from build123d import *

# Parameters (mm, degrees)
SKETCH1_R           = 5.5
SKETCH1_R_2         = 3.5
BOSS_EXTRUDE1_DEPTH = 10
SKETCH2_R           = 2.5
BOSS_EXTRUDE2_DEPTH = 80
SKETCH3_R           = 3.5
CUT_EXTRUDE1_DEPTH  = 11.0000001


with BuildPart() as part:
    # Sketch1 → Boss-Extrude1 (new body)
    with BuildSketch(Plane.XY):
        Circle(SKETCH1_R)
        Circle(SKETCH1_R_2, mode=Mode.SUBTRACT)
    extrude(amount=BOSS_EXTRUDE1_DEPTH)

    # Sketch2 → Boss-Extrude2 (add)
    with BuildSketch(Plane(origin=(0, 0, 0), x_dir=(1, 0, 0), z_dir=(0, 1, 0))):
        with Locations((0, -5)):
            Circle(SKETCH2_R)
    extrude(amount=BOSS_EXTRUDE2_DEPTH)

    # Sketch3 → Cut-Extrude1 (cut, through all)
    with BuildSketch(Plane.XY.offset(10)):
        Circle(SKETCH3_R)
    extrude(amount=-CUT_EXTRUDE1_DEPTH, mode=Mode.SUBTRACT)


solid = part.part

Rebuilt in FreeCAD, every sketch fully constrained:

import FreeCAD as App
import Part
import Sketcher
from FreeCAD import Vector
Q = App.Units.Quantity

doc = App.newDocument("Part")
body = doc.addObject("PartDesign::Body", "Body")

# Sketch on XY plane
sketch1 = body.newObject("Sketcher::SketchObject", "Sketch")
sketch1.AttachmentSupport = (doc.getObject("XY_Plane"), [""])
sketch1.MapMode = "FlatFace"
sketch1.addGeometry([
    Part.Circle(Vector(0, 0, 0), Vector(0, 0, 1), 5.5),
    Part.Circle(Vector(0, 0, 0), Vector(0, 0, 1), 3.5),
], False)
sketch1.addConstraint([
    Sketcher.Constraint("Coincident", 0, 3, -1, 1),
    Sketcher.Constraint("Coincident", 1, 3, -1, 1),
    Sketcher.Constraint("Diameter", 0, Q("11 mm")),
    Sketcher.Constraint("Diameter", 1, Q("7 mm")),
])
pad1 = body.newObject("PartDesign::Pad", "Pad")
pad1.Profile = sketch1
pad1.Length = 10

# Sketch on XZ plane
sketch2 = body.newObject("Sketcher::SketchObject", "Sketch001")
sketch2.AttachmentSupport = (doc.getObject("XZ_Plane"), [""])
sketch2.MapMode = "FlatFace"
sketch2.addGeometry(Part.Circle(Vector(0, 5, 0), Vector(0, 0, 1), 2.5), False)
sketch2.addConstraint([
    Sketcher.Constraint("PointOnObject", 0, 3, -2),
    Sketcher.Constraint("Diameter", 0, Q("5 mm")),
    Sketcher.Constraint("DistanceY", -1, 1, 0, 3, Q("5 mm")),
])
pad2 = body.newObject("PartDesign::Pad", "Pad001")
pad2.Profile = sketch2
pad2.Length = 80
pad2.Reversed = True

# Sketch on XY plane
sketch3 = body.newObject("Sketcher::SketchObject", "Sketch002")
sketch3.AttachmentSupport = (doc.getObject("XY_Plane"), [""])
sketch3.MapMode = "FlatFace"
sketch3.AttachmentOffset = App.Placement(Vector(0, 0, 10), App.Rotation())
sketch3.addGeometry(Part.Circle(Vector(0, 0, 0), Vector(0, 0, 1), 3.5), False)
sketch3.addConstraint([
    Sketcher.Constraint("Coincident", 0, 3, -1, 1),
    Sketcher.Constraint("Diameter", 0, Q("7 mm")),
])
pocket1 = body.newObject("PartDesign::Pocket", "Pocket")
pocket1.Profile = sketch3
pocket1.Type = "ThroughAll"

doc.recompute()
